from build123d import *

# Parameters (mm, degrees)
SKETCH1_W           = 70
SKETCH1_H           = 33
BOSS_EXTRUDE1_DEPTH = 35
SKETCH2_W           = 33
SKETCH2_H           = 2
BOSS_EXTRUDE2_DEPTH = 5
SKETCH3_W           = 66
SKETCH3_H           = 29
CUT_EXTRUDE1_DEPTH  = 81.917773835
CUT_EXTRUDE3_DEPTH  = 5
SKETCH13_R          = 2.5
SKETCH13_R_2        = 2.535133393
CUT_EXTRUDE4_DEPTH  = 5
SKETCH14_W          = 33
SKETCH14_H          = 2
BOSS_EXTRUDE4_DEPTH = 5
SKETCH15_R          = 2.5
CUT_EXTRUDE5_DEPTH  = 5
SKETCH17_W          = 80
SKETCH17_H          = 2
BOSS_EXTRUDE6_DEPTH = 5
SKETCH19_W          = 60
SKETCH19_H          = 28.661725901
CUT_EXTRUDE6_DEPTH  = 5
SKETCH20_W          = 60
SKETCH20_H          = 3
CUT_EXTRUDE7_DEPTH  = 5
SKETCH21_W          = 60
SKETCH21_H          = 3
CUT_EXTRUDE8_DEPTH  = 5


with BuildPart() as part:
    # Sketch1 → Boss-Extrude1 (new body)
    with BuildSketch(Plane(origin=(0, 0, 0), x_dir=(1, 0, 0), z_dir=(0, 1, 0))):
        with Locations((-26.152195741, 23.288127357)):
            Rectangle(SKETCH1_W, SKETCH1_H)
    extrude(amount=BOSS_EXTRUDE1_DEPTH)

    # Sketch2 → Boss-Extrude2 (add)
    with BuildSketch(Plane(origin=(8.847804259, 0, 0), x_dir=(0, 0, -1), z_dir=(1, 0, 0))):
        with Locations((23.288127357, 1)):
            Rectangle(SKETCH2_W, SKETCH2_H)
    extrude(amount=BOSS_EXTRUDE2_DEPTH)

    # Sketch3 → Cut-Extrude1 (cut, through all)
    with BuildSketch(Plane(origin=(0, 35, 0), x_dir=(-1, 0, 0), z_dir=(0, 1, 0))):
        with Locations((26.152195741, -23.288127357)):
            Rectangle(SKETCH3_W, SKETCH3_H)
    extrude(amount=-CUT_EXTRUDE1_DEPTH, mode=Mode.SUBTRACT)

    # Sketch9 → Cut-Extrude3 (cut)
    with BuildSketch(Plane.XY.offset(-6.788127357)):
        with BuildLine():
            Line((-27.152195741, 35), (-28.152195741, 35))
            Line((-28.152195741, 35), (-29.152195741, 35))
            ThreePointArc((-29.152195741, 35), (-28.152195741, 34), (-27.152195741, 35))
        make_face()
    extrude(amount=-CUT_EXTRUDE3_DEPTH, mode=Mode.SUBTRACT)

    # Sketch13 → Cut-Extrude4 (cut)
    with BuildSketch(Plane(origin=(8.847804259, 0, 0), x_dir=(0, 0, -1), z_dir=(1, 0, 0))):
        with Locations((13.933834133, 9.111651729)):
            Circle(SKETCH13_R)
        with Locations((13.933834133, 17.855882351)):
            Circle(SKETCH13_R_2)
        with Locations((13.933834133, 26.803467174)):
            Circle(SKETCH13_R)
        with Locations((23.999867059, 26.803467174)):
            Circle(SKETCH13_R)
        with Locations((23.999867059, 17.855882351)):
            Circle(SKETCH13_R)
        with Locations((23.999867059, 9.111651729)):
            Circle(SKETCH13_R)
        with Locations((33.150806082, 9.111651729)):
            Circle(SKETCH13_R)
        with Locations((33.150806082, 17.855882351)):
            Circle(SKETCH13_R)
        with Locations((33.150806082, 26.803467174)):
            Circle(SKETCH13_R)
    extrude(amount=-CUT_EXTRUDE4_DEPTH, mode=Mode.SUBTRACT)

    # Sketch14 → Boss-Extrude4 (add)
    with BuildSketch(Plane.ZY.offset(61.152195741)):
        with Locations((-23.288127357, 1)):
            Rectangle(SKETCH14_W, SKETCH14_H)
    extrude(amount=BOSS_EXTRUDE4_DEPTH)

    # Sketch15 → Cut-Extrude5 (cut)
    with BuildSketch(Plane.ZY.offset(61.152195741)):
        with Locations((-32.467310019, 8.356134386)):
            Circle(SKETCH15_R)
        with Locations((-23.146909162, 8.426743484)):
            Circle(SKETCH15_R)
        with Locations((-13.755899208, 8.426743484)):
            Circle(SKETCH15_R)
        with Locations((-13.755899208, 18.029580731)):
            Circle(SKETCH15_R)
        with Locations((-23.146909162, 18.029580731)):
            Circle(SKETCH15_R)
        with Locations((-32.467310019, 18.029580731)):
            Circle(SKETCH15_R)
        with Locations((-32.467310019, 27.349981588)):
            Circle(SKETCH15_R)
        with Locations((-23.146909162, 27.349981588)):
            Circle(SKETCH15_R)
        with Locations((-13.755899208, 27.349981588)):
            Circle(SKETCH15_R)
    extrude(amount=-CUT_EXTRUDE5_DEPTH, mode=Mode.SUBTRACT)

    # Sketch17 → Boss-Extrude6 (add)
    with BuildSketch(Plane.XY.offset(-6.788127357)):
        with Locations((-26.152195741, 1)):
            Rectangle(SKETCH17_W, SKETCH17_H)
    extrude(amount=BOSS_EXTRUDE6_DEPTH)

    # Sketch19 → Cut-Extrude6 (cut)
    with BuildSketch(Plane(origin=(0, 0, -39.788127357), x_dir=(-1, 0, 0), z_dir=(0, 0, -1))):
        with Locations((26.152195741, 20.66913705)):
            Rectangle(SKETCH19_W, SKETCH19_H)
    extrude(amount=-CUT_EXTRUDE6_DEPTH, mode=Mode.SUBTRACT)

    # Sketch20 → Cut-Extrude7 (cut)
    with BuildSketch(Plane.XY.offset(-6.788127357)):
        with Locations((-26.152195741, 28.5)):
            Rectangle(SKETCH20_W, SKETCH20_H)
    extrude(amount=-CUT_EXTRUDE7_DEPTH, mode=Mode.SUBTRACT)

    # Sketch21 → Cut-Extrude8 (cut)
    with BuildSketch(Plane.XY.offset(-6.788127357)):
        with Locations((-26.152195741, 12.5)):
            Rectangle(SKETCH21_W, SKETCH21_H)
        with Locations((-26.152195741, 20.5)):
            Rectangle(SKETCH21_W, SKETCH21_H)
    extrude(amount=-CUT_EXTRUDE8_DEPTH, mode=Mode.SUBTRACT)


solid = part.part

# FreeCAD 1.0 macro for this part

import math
import FreeCAD as App
import Part
import Sketcher

doc = App.newDocument("Part")
body = doc.addObject("PartDesign::Body", "Body")

# Sketch on XZ plane
sketch1 = body.newObject("Sketcher::SketchObject", "Sketch")
sketch1.AttachmentSupport = (doc.getObject("XZ_Plane"), [""])
sketch1.MapMode = "FlatFace"
sketch1.addGeometry(Part.LineSegment(App.Vector(-61, -40, 0), App.Vector(-61, -7, 0)), False)
sketch1.addGeometry(Part.LineSegment(App.Vector(-61, -7, 0), App.Vector(9, -7, 0)), False)
sketch1.addGeometry(Part.LineSegment(App.Vector(9, -7, 0), App.Vector(9, -40, 0)), False)
sketch1.addGeometry(Part.LineSegment(App.Vector(9, -40, 0), App.Vector(-61, -40, 0)), False)
sketch1.addConstraint(Sketcher.Constraint("Coincident", 0, 2, 1, 1))
sketch1.addConstraint(Sketcher.Constraint("Coincident", 1, 2, 2, 1))
sketch1.addConstraint(Sketcher.Constraint("Coincident", 2, 2, 3, 1))
sketch1.addConstraint(Sketcher.Constraint("Coincident", 3, 2, 0, 1))
sketch1.addConstraint(Sketcher.Constraint("Vertical", 0))
sketch1.addConstraint(Sketcher.Constraint("Horizontal", 1))
sketch1.addConstraint(Sketcher.Constraint("Vertical", 2))
sketch1.addConstraint(Sketcher.Constraint("Horizontal", 3))
sketch1.addConstraint(Sketcher.Constraint("DistanceX", 1, 1, 1, 2, 70.0))
sketch1.addConstraint(Sketcher.Constraint("DistanceY", 0, 1, 0, 2, 33.0))
sketch1.addConstraint(Sketcher.Constraint("DistanceX", 0, 2, -1, 1, 61.152196))
sketch1.addConstraint(Sketcher.Constraint("DistanceY", 0, 2, -1, 1, 6.788127))
pad1 = body.newObject("PartDesign::Pad", "Pad")
pad1.Profile = sketch1
pad1.Length = 35
pad1.Reversed = True

# Sketch on YZ plane
sketch2 = body.newObject("Sketcher::SketchObject", "Sketch001")
sketch2.AttachmentSupport = (doc.getObject("YZ_Plane"), [""])
sketch2.MapMode = "FlatFace"
sketch2.AttachmentOffset = App.Placement(App.Vector(0, 0, 8.847804), App.Rotation())
sketch2.addGeometry(Part.LineSegment(App.Vector(2, -6.8, 0), App.Vector(0, -6.8, 0)), False)
sketch2.addGeometry(Part.LineSegment(App.Vector(0, -6.8, 0), App.Vector(0, -39.8, 0)), False)
sketch2.addGeometry(Part.LineSegment(App.Vector(0, -39.8, 0), App.Vector(2, -39.8, 0)), False)
sketch2.addGeometry(Part.LineSegment(App.Vector(2, -39.8, 0), App.Vector(2, -6.8, 0)), False)
sketch2.addConstraint(Sketcher.Constraint("Coincident", 0, 2, 1, 1))
sketch2.addConstraint(Sketcher.Constraint("Coincident", 1, 2, 2, 1))
sketch2.addConstraint(Sketcher.Constraint("Coincident", 2, 2, 3, 1))
sketch2.addConstraint(Sketcher.Constraint("Coincident", 3, 2, 0, 1))
sketch2.addConstraint(Sketcher.Constraint("Horizontal", 0))
sketch2.addConstraint(Sketcher.Constraint("Vertical", 1))
sketch2.addConstraint(Sketcher.Constraint("Horizontal", 2))
sketch2.addConstraint(Sketcher.Constraint("Vertical", 3))
sketch2.addConstraint(Sketcher.Constraint("PointOnObject", 0, 2, -2))
sketch2.addConstraint(Sketcher.Constraint("DistanceX", 0, 2, 0, 1, 2.0))
sketch2.addConstraint(Sketcher.Constraint("DistanceY", 1, 2, 1, 1, 33.0))
sketch2.addConstraint(Sketcher.Constraint("DistanceY", 0, 2, -1, 1, 6.788127))
pad2 = body.newObject("PartDesign::Pad", "Pad001")
pad2.Profile = sketch2
pad2.Length = 5

# Sketch on XZ plane
sketch3 = body.newObject("Sketcher::SketchObject", "Sketch002")
sketch3.AttachmentSupport = (doc.getObject("XZ_Plane"), [""])
sketch3.MapMode = "FlatFace"
sketch3.AttachmentOffset = App.Placement(App.Vector(0, 0, -35), App.Rotation())
sketch3.addGeometry(Part.LineSegment(App.Vector(7, -9, 0), App.Vector(7, -38, 0)), False)
sketch3.addGeometry(Part.LineSegment(App.Vector(7, -38, 0), App.Vector(-59, -38, 0)), False)
sketch3.addGeometry(Part.LineSegment(App.Vector(-59, -38, 0), App.Vector(-59, -9, 0)), False)
sketch3.addGeometry(Part.LineSegment(App.Vector(-59, -9, 0), App.Vector(7, -9, 0)), False)
sketch3.addConstraint(Sketcher.Constraint("Coincident", 0, 2, 1, 1))
sketch3.addConstraint(Sketcher.Constraint("Coincident", 1, 2, 2, 1))
sketch3.addConstraint(Sketcher.Constraint("Coincident", 2, 2, 3, 1))
sketch3.addConstraint(Sketcher.Constraint("Coincident", 3, 2, 0, 1))
sketch3.addConstraint(Sketcher.Constraint("Vertical", 0))
sketch3.addConstraint(Sketcher.Constraint("Horizontal", 1))
sketch3.addConstraint(Sketcher.Constraint("Vertical", 2))
sketch3.addConstraint(Sketcher.Constraint("Horizontal", 3))
sketch3.addConstraint(Sketcher.Constraint("DistanceX", 1, 2, 1, 1, 66.0))
sketch3.addConstraint(Sketcher.Constraint("DistanceY", 0, 2, 0, 1, 29.0))
sketch3.addConstraint(Sketcher.Constraint("DistanceX", -1, 1, 0, 2, 6.847804))
sketch3.addConstraint(Sketcher.Constraint("DistanceY", 0, 2, -1, 1, 37.788127))
pocket1 = body.newObject("PartDesign::Pocket", "Pocket")
pocket1.Profile = sketch3
pocket1.Type = "ThroughAll"
pocket1.Reversed = True

# Sketch on XY plane
sketch4 = body.newObject("Sketcher::SketchObject", "Sketch003")
sketch4.AttachmentSupport = (doc.getObject("XY_Plane"), [""])
sketch4.MapMode = "FlatFace"
sketch4.AttachmentOffset = App.Placement(App.Vector(0, 0, -6.788127), App.Rotation())
sketch4.addGeometry(Part.LineSegment(App.Vector(-27.2, 35, 0), App.Vector(-29.2, 35, 0)), False)
sketch4.addGeometry(Part.ArcOfCircle(Part.Circle(App.Vector(-28.2, 35, 0), App.Vector(0, 0, 1), 1), math.radians(180), math.radians(360)), False)
sketch4.addConstraint(Sketcher.Constraint("Coincident", 0, 1, 1, 2))
sketch4.addConstraint(Sketcher.Constraint("Coincident", 1, 1, 0, 2))
sketch4.addConstraint(Sketcher.Constraint("Horizontal", 0))
sketch4.addConstraint(Sketcher.Constraint("Horizontal", 1, 3, 0, 1))
sketch4.addConstraint(Sketcher.Constraint("Radius", 1, 1.0))
sketch4.addConstraint(Sketcher.Constraint("DistanceY", -1, 1, 1, 3, 35.0))
sketch4.addConstraint(Sketcher.Constraint("DistanceX", 1, 3, -1, 1, 28.152196))
pocket2 = body.newObject("PartDesign::Pocket", "Pocket001")
pocket2.Profile = sketch4
pocket2.Length = 5

# Sketch on YZ plane
sketch5 = body.newObject("Sketcher::SketchObject", "Sketch004")
sketch5.AttachmentSupport = (doc.getObject("YZ_Plane"), [""])
sketch5.MapMode = "FlatFace"
sketch5.AttachmentOffset = App.Placement(App.Vector(0, 0, 8.847804), App.Rotation())
sketch5.addGeometry(Part.Circle(App.Vector(9.1, -13.9, 0), App.Vector(0, 0, 1), 2.5), False)
sketch5.addGeometry(Part.Circle(App.Vector(17.9, -13.9, 0), App.Vector(0, 0, 1), 2.5), False)
sketch5.addGeometry(Part.Circle(App.Vector(26.8, -13.9, 0), App.Vector(0, 0, 1), 2.5), False)
sketch5.addGeometry(Part.Circle(App.Vector(26.8, -24, 0), App.Vector(0, 0, 1), 2.5), False)
sketch5.addGeometry(Part.Circle(App.Vector(17.9, -24, 0), App.Vector(0, 0, 1), 2.5), False)
sketch5.addGeometry(Part.Circle(App.Vector(9.1, -24, 0), App.Vector(0, 0, 1), 2.5), False)
sketch5.addGeometry(Part.Circle(App.Vector(9.1, -33.2, 0), App.Vector(0, 0, 1), 2.5), False)
sketch5.addGeometry(Part.Circle(App.Vector(17.9, -33.2, 0), App.Vector(0, 0, 1), 2.5), False)
sketch5.addGeometry(Part.Circle(App.Vector(26.8, -33.2, 0), App.Vector(0, 0, 1), 2.5), False)
sketch5.addConstraint(Sketcher.Constraint("Equal", 0, 2))
sketch5.addConstraint(Sketcher.Constraint("Equal", 2, 3))
sketch5.addConstraint(Sketcher.Constraint("Equal", 3, 4))
sketch5.addConstraint(Sketcher.Constraint("Equal", 4, 5))
sketch5.addConstraint(Sketcher.Constraint("Equal", 5, 6))
sketch5.addConstraint(Sketcher.Constraint("Equal", 6, 7))
sketch5.addConstraint(Sketcher.Constraint("Equal", 7, 8))
sketch5.addConstraint(Sketcher.Constraint("Horizontal", 0, 3, 1, 3))
sketch5.addConstraint(Sketcher.Constraint("Horizontal", 1, 3, 2, 3))
sketch5.addConstraint(Sketcher.Constraint("Horizontal", 3, 3, 4, 3))
sketch5.addConstraint(Sketcher.Constraint("Horizontal", 4, 3, 5, 3))
sketch5.addConstraint(Sketcher.Constraint("Horizontal", 6, 3, 7, 3))
sketch5.addConstraint(Sketcher.Constraint("Horizontal", 7, 3, 8, 3))
sketch5.addConstraint(Sketcher.Constraint("Vertical", 2, 3, 3, 3))
sketch5.addConstraint(Sketcher.Constraint("Vertical", 1, 3, 4, 3))
sketch5.addConstraint(Sketcher.Constraint("Vertical", 0, 3, 5, 3))
sketch5.addConstraint(Sketcher.Constraint("Vertical", 5, 3, 6, 3))
sketch5.addConstraint(Sketcher.Constraint("Vertical", 4, 3, 7, 3))
sketch5.addConstraint(Sketcher.Constraint("Vertical", 3, 3, 8, 3))
sketch5.addConstraint(Sketcher.Constraint("Diameter", 0, 5.0))
sketch5.addConstraint(Sketcher.Constraint("Diameter", 1, 5.070267))
sketch5.addConstraint(Sketcher.Constraint("DistanceX", -1, 1, 0, 3, 9.111652))
sketch5.addConstraint(Sketcher.Constraint("DistanceX", 0, 3, 1, 3, 8.744231))
sketch5.addConstraint(Sketcher.Constraint("DistanceY", 6, 3, 5, 3, 9.150939))
sketch5.addConstraint(Sketcher.Constraint("DistanceY", 6, 3, 0, 3, 19.216972))
sketch5.addConstraint(Sketcher.Constraint("DistanceY", 0, 3, -1, 1, 13.933834))
sketch5.addConstraint(Sketcher.Constraint("DistanceX", -1, 1, 2, 3, 26.803467))
pocket3 = body.newObject("PartDesign::Pocket", "Pocket002")
pocket3.Profile = sketch5
pocket3.Length = 5

# Sketch on YZ plane
sketch6 = body.newObject("Sketcher::SketchObject", "Sketch005")
sketch6.AttachmentSupport = (doc.getObject("YZ_Plane"), [""])
sketch6.MapMode = "FlatFace"
sketch6.AttachmentOffset = App.Placement(App.Vector(0, 0, -61.152196), App.Rotation())
sketch6.addGeometry(Part.LineSegment(App.Vector(2, -39.8, 0), App.Vector(0, -39.8, 0)), False)
sketch6.addGeometry(Part.LineSegment(App.Vector(0, -39.8, 0), App.Vector(0, -6.8, 0)), False)
sketch6.addGeometry(Part.LineSegment(App.Vector(0, -6.8, 0), App.Vector(2, -6.8, 0)), False)
sketch6.addGeometry(Part.LineSegment(App.Vector(2, -6.8, 0), App.Vector(2, -39.8, 0)), False)
sketch6.addConstraint(Sketcher.Constraint("Coincident", 0, 2, 1, 1))
sketch6.addConstraint(Sketcher.Constraint("Coincident", 1, 2, 2, 1))
sketch6.addConstraint(Sketcher.Constraint("Coincident", 2, 2, 3, 1))
sketch6.addConstraint(Sketcher.Constraint("Coincident", 3, 2, 0, 1))
sketch6.addConstraint(Sketcher.Constraint("Horizontal", 0))
sketch6.addConstraint(Sketcher.Constraint("Vertical", 1))
sketch6.addConstraint(Sketcher.Constraint("Horizontal", 2))
sketch6.addConstraint(Sketcher.Constraint("Vertical", 3))
sketch6.addConstraint(Sketcher.Constraint("PointOnObject", 0, 2, -2))
sketch6.addConstraint(Sketcher.Constraint("DistanceX", 0, 2, 0, 1, 2.0))
sketch6.addConstraint(Sketcher.Constraint("DistanceY", 1, 1, 1, 2, 33.0))
sketch6.addConstraint(Sketcher.Constraint("DistanceY", 0, 2, -1, 1, 39.788127))
pad3 = body.newObject("PartDesign::Pad", "Pad002")
pad3.Profile = sketch6
pad3.Length = 5
pad3.Reversed = True

# Sketch on YZ plane
sketch7 = body.newObject("Sketcher::SketchObject", "Sketch006")
sketch7.AttachmentSupport = (doc.getObject("YZ_Plane"), [""])
sketch7.MapMode = "FlatFace"
sketch7.AttachmentOffset = App.Placement(App.Vector(0, 0, -61.152196), App.Rotation())
sketch7.addGeometry(Part.Circle(App.Vector(8.4, -32.5, 0), App.Vector(0, 0, 1), 2.5), False)
sketch7.addGeometry(Part.Circle(App.Vector(8.4, -23.1, 0), App.Vector(0, 0, 1), 2.5), False)
sketch7.addGeometry(Part.Circle(App.Vector(8.4, -13.8, 0), App.Vector(0, 0, 1), 2.5), False)
sketch7.addGeometry(Part.Circle(App.Vector(18, -13.8, 0), App.Vector(0, 0, 1), 2.5), False)
sketch7.addGeometry(Part.Circle(App.Vector(18, -23.1, 0), App.Vector(0, 0, 1), 2.5), False)
sketch7.addGeometry(Part.Circle(App.Vector(18, -32.5, 0), App.Vector(0, 0, 1), 2.5), False)
sketch7.addGeometry(Part.Circle(App.Vector(27.3, -32.5, 0), App.Vector(0, 0, 1), 2.5), False)
sketch7.addGeometry(Part.Circle(App.Vector(27.3, -23.1, 0), App.Vector(0, 0, 1), 2.5), False)
sketch7.addGeometry(Part.Circle(App.Vector(27.3, -13.8, 0), App.Vector(0, 0, 1), 2.5), False)
sketch7.addConstraint(Sketcher.Constraint("Equal", 0, 1))
sketch7.addConstraint(Sketcher.Constraint("Equal", 1, 2))
sketch7.addConstraint(Sketcher.Constraint("Equal", 2, 3))
sketch7.addConstraint(Sketcher.Constraint("Equal", 3, 4))
sketch7.addConstraint(Sketcher.Constraint("Equal", 4, 5))
sketch7.addConstraint(Sketcher.Constraint("Equal", 5, 6))
sketch7.addConstraint(Sketcher.Constraint("Equal", 6, 7))
sketch7.addConstraint(Sketcher.Constraint("Equal", 7, 8))
sketch7.addConstraint(Sketcher.Constraint("Horizontal", 2, 3, 3, 3))
sketch7.addConstraint(Sketcher.Constraint("Horizontal", 1, 3, 4, 3))
sketch7.addConstraint(Sketcher.Constraint("Horizontal", 0, 3, 5, 3))
sketch7.addConstraint(Sketcher.Constraint("Horizontal", 5, 3, 6, 3))
sketch7.addConstraint(Sketcher.Constraint("Horizontal", 4, 3, 7, 3))
sketch7.addConstraint(Sketcher.Constraint("Horizontal", 3, 3, 8, 3))
sketch7.addConstraint(Sketcher.Constraint("Vertical", 1, 3, 2, 3))
sketch7.addConstraint(Sketcher.Constraint("Vertical", 3, 3, 4, 3))
sketch7.addConstraint(Sketcher.Constraint("Vertical", 4, 3, 5, 3))
sketch7.addConstraint(Sketcher.Constraint("Vertical", 6, 3, 7, 3))
sketch7.addConstraint(Sketcher.Constraint("Vertical", 7, 3, 8, 3))
sketch7.addConstraint(Sketcher.Constraint("Diameter", 0, 5.0))
sketch7.addConstraint(Sketcher.Constraint("DistanceY", 2, 3, -1, 1, 13.755899))
sketch7.addConstraint(Sketcher.Constraint("DistanceY", 0, 3, 1, 3, 9.320401))
sketch7.addConstraint(Sketcher.Constraint("DistanceX", 5, 3, 6, 3, 9.320401))
sketch7.addConstraint(Sketcher.Constraint("DistanceY", 0, 3, -1, 1, 32.46731))
sketch7.addConstraint(Sketcher.Constraint("DistanceX", -1, 1, 3, 3, 18.029581))
sketch7.addConstraint(Sketcher.Constraint("DistanceX", 0, 3, 1, 3, 0.070609))
sketch7.addConstraint(Sketcher.Constraint("DistanceX", 1, 3, 6, 3, 18.923238))
pocket4 = body.newObject("PartDesign::Pocket", "Pocket003")
pocket4.Profile = sketch7
pocket4.Length = 5
pocket4.Reversed = True

# Sketch on XY plane
sketch8 = body.newObject("Sketcher::SketchObject", "Sketch007")
sketch8.AttachmentSupport = (doc.getObject("XY_Plane"), [""])
sketch8.MapMode = "FlatFace"
sketch8.AttachmentOffset = App.Placement(App.Vector(0, 0, -6.788127), App.Rotation())
sketch8.addGeometry(Part.LineSegment(App.Vector(-66.2, 2, 0), App.Vector(-66.2, 0, 0)), False)
sketch8.addGeometry(Part.LineSegment(App.Vector(-66.2, 0, 0), App.Vector(13.8, 0, 0)), False)
sketch8.addGeometry(Part.LineSegment(App.Vector(13.8, 0, 0), App.Vector(13.8, 2, 0)), False)
sketch8.addGeometry(Part.LineSegment(App.Vector(13.8, 2, 0), App.Vector(-66.2, 2, 0)), False)
sketch8.addConstraint(Sketcher.Constraint("Coincident", 0, 2, 1, 1))
sketch8.addConstraint(Sketcher.Constraint("Coincident", 1, 2, 2, 1))
sketch8.addConstraint(Sketcher.Constraint("Coincident", 2, 2, 3, 1))
sketch8.addConstraint(Sketcher.Constraint("Coincident", 3, 2, 0, 1))
sketch8.addConstraint(Sketcher.Constraint("Vertical", 0))
sketch8.addConstraint(Sketcher.Constraint("Horizontal", 1))
sketch8.addConstraint(Sketcher.Constraint("Vertical", 2))
sketch8.addConstraint(Sketcher.Constraint("Horizontal", 3))
sketch8.addConstraint(Sketcher.Constraint("PointOnObject", 0, 2, -1))
sketch8.addConstraint(Sketcher.Constraint("DistanceX", 1, 1, 1, 2, 80.0))
sketch8.addConstraint(Sketcher.Constraint("DistanceY", 0, 2, 0, 1, 2.0))
sketch8.addConstraint(Sketcher.Constraint("DistanceX", 0, 2, -1, 1, 66.152196))
pad4 = body.newObject("PartDesign::Pad", "Pad003")
pad4.Profile = sketch8
pad4.Length = 5

# Sketch on XY plane
sketch9 = body.newObject("Sketcher::SketchObject", "Sketch008")
sketch9.AttachmentSupport = (doc.getObject("XY_Plane"), [""])
sketch9.MapMode = "FlatFace"
sketch9.AttachmentOffset = App.Placement(App.Vector(0, 0, -39.788127), App.Rotation())
sketch9.addGeometry(Part.LineSegment(App.Vector(4, 35, 0), App.Vector(4, 6, 0)), False)
sketch9.addGeometry(Part.LineSegment(App.Vector(4, 6, 0), App.Vector(-56, 6, 0)), False)
sketch9.addGeometry(Part.LineSegment(App.Vector(-56, 6, 0), App.Vector(-56, 35, 0)), False)
sketch9.addGeometry(Part.LineSegment(App.Vector(-56, 35, 0), App.Vector(4, 35, 0)), False)
sketch9.addConstraint(Sketcher.Constraint("Coincident", 0, 2, 1, 1))
sketch9.addConstraint(Sketcher.Constraint("Coincident", 1, 2, 2, 1))
sketch9.addConstraint(Sketcher.Constraint("Coincident", 2, 2, 3, 1))
sketch9.addConstraint(Sketcher.Constraint("Coincident", 3, 2, 0, 1))
sketch9.addConstraint(Sketcher.Constraint("Vertical", 0))
sketch9.addConstraint(Sketcher.Constraint("Horizontal", 1))
sketch9.addConstraint(Sketcher.Constraint("Vertical", 2))
sketch9.addConstraint(Sketcher.Constraint("Horizontal", 3))
sketch9.addConstraint(Sketcher.Constraint("DistanceX", 1, 2, 1, 1, 60.0))
sketch9.addConstraint(Sketcher.Constraint("DistanceY", -1, 1, 2, 2, 35.0))
sketch9.addConstraint(Sketcher.Constraint("DistanceY", 0, 2, 0, 1, 28.661726))
sketch9.addConstraint(Sketcher.Constraint("DistanceX", -1, 1, 0, 2, 3.847804))
pocket5 = body.newObject("PartDesign::Pocket", "Pocket004")
pocket5.Profile = sketch9
pocket5.Length = 5
pocket5.Reversed = True

# Sketch on XY plane
sketch10 = body.newObject("Sketcher::SketchObject", "Sketch009")
sketch10.AttachmentSupport = (doc.getObject("XY_Plane"), [""])
sketch10.MapMode = "FlatFace"
sketch10.AttachmentOffset = App.Placement(App.Vector(0, 0, -6.788127), App.Rotation())
sketch10.addGeometry(Part.LineSegment(App.Vector(-56.2, 30, 0), App.Vector(-56.2, 27, 0)), False)
sketch10.addGeometry(Part.LineSegment(App.Vector(-56.2, 27, 0), App.Vector(3.8, 27, 0)), False)
sketch10.addGeometry(Part.LineSegment(App.Vector(3.8, 27, 0), App.Vector(3.8, 30, 0)), False)
sketch10.addGeometry(Part.LineSegment(App.Vector(3.8, 30, 0), App.Vector(-56.2, 30, 0)), False)
sketch10.addConstraint(Sketcher.Constraint("Coincident", 0, 2, 1, 1))
sketch10.addConstraint(Sketcher.Constraint("Coincident", 1, 2, 2, 1))
sketch10.addConstraint(Sketcher.Constraint("Coincident", 2, 2, 3, 1))
sketch10.addConstraint(Sketcher.Constraint("Coincident", 3, 2, 0, 1))
sketch10.addConstraint(Sketcher.Constraint("Vertical", 0))
sketch10.addConstraint(Sketcher.Constraint("Horizontal", 1))
sketch10.addConstraint(Sketcher.Constraint("Vertical", 2))
sketch10.addConstraint(Sketcher.Constraint("Horizontal", 3))
sketch10.addConstraint(Sketcher.Constraint("DistanceX", 1, 1, 1, 2, 60.0))
sketch10.addConstraint(Sketcher.Constraint("DistanceY", 0, 2, 0, 1, 3.0))
sketch10.addConstraint(Sketcher.Constraint("DistanceY", -1, 1, 0, 2, 27.0))
sketch10.addConstraint(Sketcher.Constraint("DistanceX", 0, 2, -1, 1, 56.152196))
pocket6 = body.newObject("PartDesign::Pocket", "Pocket005")
pocket6.Profile = sketch10
pocket6.Length = 5

# Sketch on XY plane
sketch11 = body.newObject("Sketcher::SketchObject", "Sketch010")
sketch11.AttachmentSupport = (doc.getObject("XY_Plane"), [""])
sketch11.MapMode = "FlatFace"
sketch11.AttachmentOffset = App.Placement(App.Vector(0, 0, -6.788127), App.Rotation())
sketch11.addGeometry(Part.LineSegment(App.Vector(-56.2, 14, 0), App.Vector(-56.2, 11, 0)), False)
sketch11.addGeometry(Part.LineSegment(App.Vector(-56.2, 11, 0), App.Vector(3.8, 11, 0)), False)
sketch11.addGeometry(Part.LineSegment(App.Vector(3.8, 11, 0), App.Vector(3.8, 14, 0)), False)
sketch11.addGeometry(Part.LineSegment(App.Vector(3.8, 14, 0), App.Vector(-56.2, 14, 0)), False)
sketch11.addGeometry(Part.LineSegment(App.Vector(-56.2, 22, 0), App.Vector(-56.2, 19, 0)), False)
sketch11.addGeometry(Part.LineSegment(App.Vector(-56.2, 19, 0), App.Vector(3.8, 19, 0)), False)
sketch11.addGeometry(Part.LineSegment(App.Vector(3.8, 19, 0), App.Vector(3.8, 22, 0)), False)
sketch11.addGeometry(Part.LineSegment(App.Vector(3.8, 22, 0), App.Vector(-56.2, 22, 0)), False)
sketch11.addConstraint(Sketcher.Constraint("Coincident", 0, 2, 1, 1))
sketch11.addConstraint(Sketcher.Constraint("Coincident", 1, 2, 2, 1))
sketch11.addConstraint(Sketcher.Constraint("Coincident", 2, 2, 3, 1))
sketch11.addConstraint(Sketcher.Constraint("Coincident", 3, 2, 0, 1))
sketch11.addConstraint(Sketcher.Constraint("Coincident", 4, 2, 5, 1))
sketch11.addConstraint(Sketcher.Constraint("Coincident", 5, 2, 6, 1))
sketch11.addConstraint(Sketcher.Constraint("Coincident", 6, 2, 7, 1))
sketch11.addConstraint(Sketcher.Constraint("Coincident", 7, 2, 4, 1))
sketch11.addConstraint(Sketcher.Constraint("Vertical", 0))
sketch11.addConstraint(Sketcher.Constraint("Horizontal", 1))
sketch11.addConstraint(Sketcher.Constraint("Vertical", 2))
sketch11.addConstraint(Sketcher.Constraint("Horizontal", 3))
sketch11.addConstraint(Sketcher.Constraint("Vertical", 4))
sketch11.addConstraint(Sketcher.Constraint("Horizontal", 5))
sketch11.addConstraint(Sketcher.Constraint("Vertical", 6))
sketch11.addConstraint(Sketcher.Constraint("Horizontal", 7))
sketch11.addConstraint(Sketcher.Constraint("Vertical", 3, 2, 4, 2))
sketch11.addConstraint(Sketcher.Constraint("Vertical", 2, 2, 5, 2))
sketch11.addConstraint(Sketcher.Constraint("Equal", 2, 4))
sketch11.addConstraint(Sketcher.Constraint("DistanceX", 1, 1, 1, 2, 60.0))
sketch11.addConstraint(Sketcher.Constraint("DistanceY", 0, 2, 0, 1, 3.0))
sketch11.addConstraint(Sketcher.Constraint("DistanceY", -1, 1, 0, 2, 11.0))
sketch11.addConstraint(Sketcher.Constraint("DistanceY", -1, 1, 4, 2, 19.0))
sketch11.addConstraint(Sketcher.Constraint("DistanceX", 0, 2, -1, 1, 56.152196))
pocket7 = body.newObject("PartDesign::Pocket", "Pocket006")
pocket7.Profile = sketch11
pocket7.Length = 5

doc.recompute()
